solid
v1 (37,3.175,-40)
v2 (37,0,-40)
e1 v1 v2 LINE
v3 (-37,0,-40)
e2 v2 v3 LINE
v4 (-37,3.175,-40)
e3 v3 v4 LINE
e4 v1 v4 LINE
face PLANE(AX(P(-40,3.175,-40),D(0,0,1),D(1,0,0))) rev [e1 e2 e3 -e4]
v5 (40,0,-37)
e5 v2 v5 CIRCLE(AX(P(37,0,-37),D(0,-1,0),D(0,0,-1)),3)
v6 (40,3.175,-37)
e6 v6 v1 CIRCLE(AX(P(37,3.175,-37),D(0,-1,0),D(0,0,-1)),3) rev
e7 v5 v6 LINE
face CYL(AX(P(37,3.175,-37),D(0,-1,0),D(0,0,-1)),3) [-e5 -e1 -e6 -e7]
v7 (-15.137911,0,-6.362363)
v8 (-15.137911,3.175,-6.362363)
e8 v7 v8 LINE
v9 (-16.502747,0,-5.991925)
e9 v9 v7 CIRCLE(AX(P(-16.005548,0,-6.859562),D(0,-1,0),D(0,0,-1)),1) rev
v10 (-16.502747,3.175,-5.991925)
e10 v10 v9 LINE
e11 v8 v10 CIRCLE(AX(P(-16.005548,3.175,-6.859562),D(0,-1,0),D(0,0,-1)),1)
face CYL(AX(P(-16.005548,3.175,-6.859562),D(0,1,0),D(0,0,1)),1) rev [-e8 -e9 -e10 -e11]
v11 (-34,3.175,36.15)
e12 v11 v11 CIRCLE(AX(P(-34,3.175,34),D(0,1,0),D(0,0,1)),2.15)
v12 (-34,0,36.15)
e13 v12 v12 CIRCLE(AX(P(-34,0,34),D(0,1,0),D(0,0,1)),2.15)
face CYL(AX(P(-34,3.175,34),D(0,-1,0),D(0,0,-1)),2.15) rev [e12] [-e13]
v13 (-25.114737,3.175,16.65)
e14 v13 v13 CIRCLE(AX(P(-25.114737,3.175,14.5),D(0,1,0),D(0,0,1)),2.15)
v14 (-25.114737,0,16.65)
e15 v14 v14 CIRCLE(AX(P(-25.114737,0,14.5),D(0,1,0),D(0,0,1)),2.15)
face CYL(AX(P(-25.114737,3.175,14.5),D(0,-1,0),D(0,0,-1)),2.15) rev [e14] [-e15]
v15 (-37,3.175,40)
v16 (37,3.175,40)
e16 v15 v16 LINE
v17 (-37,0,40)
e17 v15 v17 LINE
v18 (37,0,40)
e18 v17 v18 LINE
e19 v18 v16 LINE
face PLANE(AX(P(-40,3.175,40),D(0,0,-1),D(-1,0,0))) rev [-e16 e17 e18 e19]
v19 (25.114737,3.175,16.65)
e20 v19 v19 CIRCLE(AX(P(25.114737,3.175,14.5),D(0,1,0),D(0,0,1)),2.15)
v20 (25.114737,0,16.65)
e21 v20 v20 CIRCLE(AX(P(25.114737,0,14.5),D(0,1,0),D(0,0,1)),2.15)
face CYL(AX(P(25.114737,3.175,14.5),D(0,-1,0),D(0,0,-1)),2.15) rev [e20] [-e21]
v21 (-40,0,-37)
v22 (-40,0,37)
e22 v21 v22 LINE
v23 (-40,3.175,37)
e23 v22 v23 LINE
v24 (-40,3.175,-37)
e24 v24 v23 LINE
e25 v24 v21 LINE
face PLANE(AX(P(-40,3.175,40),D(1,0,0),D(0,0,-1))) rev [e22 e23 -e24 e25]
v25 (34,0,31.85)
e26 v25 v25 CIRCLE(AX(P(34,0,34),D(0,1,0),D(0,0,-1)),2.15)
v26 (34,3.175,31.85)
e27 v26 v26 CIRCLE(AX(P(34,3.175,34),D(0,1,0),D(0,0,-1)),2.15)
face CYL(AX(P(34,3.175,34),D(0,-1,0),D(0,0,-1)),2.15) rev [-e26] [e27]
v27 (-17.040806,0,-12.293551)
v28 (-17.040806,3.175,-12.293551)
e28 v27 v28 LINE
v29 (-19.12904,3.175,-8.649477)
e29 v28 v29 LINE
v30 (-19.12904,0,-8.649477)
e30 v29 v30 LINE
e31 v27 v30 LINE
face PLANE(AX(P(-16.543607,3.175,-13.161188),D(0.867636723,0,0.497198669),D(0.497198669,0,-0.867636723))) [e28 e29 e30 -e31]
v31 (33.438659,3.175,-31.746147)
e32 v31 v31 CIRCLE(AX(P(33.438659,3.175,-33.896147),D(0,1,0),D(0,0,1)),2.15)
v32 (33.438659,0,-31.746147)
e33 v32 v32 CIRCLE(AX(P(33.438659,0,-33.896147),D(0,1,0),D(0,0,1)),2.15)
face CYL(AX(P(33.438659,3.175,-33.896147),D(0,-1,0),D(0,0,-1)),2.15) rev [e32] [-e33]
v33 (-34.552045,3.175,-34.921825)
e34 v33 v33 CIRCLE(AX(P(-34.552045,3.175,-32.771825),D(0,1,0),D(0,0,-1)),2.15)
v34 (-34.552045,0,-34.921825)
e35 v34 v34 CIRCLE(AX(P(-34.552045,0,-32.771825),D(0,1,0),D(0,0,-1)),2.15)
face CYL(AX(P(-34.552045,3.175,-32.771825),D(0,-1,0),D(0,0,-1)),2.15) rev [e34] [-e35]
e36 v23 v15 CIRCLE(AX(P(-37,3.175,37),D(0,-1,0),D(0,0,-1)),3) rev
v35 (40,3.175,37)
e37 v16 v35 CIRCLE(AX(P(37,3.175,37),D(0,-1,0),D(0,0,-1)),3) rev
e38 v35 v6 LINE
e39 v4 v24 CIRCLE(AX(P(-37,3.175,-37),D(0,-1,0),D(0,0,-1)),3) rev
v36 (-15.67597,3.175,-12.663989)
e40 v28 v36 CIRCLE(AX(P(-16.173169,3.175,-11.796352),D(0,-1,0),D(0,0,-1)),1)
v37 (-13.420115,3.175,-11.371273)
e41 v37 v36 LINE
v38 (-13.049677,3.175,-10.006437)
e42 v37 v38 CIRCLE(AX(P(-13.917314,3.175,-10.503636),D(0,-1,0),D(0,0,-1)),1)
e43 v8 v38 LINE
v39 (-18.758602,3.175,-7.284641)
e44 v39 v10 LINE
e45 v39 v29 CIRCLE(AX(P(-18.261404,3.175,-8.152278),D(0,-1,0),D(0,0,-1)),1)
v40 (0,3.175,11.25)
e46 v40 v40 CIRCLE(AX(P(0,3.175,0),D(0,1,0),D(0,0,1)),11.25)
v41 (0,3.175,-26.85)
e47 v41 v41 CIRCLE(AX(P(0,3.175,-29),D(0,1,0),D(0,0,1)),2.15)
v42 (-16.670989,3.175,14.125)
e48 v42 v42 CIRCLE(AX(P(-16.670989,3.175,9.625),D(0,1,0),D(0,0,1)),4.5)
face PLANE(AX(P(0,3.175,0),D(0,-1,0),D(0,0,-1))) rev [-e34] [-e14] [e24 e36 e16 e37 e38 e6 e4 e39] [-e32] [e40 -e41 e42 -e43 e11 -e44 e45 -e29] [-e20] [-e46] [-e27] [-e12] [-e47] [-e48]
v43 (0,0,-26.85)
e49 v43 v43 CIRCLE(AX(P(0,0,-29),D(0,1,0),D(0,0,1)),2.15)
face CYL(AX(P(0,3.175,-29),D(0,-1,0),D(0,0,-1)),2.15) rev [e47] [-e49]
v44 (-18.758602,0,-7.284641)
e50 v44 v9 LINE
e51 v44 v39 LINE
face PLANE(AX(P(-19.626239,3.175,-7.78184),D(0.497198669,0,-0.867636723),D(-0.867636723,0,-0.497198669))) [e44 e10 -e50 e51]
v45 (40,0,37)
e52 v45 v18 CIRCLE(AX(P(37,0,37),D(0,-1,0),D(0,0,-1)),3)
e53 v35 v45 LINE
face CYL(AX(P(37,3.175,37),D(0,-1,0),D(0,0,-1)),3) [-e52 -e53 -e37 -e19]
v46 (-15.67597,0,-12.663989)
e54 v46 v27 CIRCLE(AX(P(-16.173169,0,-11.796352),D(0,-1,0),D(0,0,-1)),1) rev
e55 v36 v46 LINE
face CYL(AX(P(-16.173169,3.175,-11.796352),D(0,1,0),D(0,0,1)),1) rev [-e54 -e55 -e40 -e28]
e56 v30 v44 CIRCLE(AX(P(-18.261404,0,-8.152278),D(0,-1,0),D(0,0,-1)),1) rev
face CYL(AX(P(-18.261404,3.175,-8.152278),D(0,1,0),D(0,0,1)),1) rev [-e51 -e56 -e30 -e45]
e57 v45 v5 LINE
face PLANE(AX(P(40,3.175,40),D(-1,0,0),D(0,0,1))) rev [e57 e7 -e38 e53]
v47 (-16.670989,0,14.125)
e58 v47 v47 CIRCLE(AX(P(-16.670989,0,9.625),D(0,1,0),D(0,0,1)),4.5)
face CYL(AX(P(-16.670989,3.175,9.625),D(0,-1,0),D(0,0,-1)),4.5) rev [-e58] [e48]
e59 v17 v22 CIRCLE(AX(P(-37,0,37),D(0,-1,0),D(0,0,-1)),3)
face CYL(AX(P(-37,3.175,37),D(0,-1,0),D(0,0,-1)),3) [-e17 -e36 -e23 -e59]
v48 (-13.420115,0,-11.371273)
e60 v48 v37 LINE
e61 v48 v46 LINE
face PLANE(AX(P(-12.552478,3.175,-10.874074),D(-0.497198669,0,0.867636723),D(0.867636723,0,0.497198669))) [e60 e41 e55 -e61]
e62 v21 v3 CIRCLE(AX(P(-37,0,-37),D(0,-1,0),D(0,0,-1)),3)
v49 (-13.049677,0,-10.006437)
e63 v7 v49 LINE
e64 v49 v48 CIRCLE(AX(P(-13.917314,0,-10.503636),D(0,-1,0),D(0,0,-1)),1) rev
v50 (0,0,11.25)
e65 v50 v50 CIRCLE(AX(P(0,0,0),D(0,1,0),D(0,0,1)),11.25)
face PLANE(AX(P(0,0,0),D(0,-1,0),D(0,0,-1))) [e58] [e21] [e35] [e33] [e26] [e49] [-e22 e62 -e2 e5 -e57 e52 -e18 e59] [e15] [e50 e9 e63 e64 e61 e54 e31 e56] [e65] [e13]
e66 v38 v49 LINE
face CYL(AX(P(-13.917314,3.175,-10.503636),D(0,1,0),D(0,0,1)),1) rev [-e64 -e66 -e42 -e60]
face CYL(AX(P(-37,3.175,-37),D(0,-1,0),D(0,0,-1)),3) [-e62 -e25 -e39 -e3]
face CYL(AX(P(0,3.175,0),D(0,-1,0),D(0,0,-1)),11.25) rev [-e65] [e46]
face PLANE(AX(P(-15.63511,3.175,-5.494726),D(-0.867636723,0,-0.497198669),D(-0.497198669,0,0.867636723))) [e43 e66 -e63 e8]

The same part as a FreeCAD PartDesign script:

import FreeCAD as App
import Part
import Sketcher

V = App.Vector
Q = App.Units.Quantity


def edges_at(feature, points):
    """Names of the edges that pass closest to the given points."""
    edges = feature.Shape.Edges
    near = lambda p: min(range(len(edges)), key=lambda i: edges[i].distToShape(Part.Vertex(*p))[0])
    return sorted({f"Edge{near(p) + 1}" for p in points})


def add_polygon(sketch, points):
    """Adds a closed chain of lines whose ends are joined by coincident constraints."""
    first, n = sketch.GeometryCount, len(points)
    for a, b in zip(points, points[1:] + points[:1]):
        sketch.addGeometry(Part.LineSegment(App.Vector(*a, 0), App.Vector(*b, 0)), False)
    for i in range(n):
        sketch.addConstraint(Sketcher.Constraint("Coincident", first + i, 2, first + (i + 1) % n, 1))

doc = App.newDocument("Part")
params = doc.addObject("Spreadsheet::Sheet", "Params")
for row, (alias, value) in enumerate([
    ("sketch1_diameter", "9 mm"),
    ("sketch1_diameter2", "4.3 mm"),
    ("sketch1_diameter3", "22.5 mm"),
    ("sketch1_width", "80 mm"),
    ("sketch1_length", "4.6 mm"),
    ("pad1_length", "3.175 mm"),
    ("fillet_radius", "3 mm"),
    ("fillet2_radius", "1 mm"),
], start=1):
    params.set(f"A{row}", alias)
    params.set(f"B{row}", "=" + value)
    params.setAlias(f"B{row}", alias)

body = doc.addObject("PartDesign::Body", "Body")

# Sketch on XZ plane
sketch1 = body.newObject("Sketcher::SketchObject", "Sketch")
sketch1.AttachmentSupport = (doc.getObject("XZ_Plane"), [""])
sketch1.MapMode = "FlatFace"
add_polygon(sketch1, [(-40, -40), (-40, 40), (40, 40), (40, -40)])  # lines 0-3
sketch1.addGeometry(Part.Circle(V(-34, 34, 0), V(0, 0, 1), 2.1), False)  # 4
sketch1.addGeometry(Part.Circle(V(-25.1, 14.5, 0), V(0, 0, 1), 2.1), False)  # 5
sketch1.addGeometry(Part.Circle(V(-16.7, 9.6, 0), V(0, 0, 1), 4.5), False)  # 6
sketch1.addGeometry(Part.Circle(V(34, 34, 0), V(0, 0, 1), 2.1), False)  # 7
sketch1.addGeometry(Part.Circle(V(25.1, 14.5, 0), V(0, 0, 1), 2.1), False)  # 8
add_polygon(sketch1, [(-15.6, -5.5), (-19.6, -7.8), (-16.5, -13.2), (-12.6, -10.9)])  # lines 9-12
sketch1.addGeometry(Part.Circle(V(-34.6, -32.8, 0), V(0, 0, 1), 2.1), False)  # 13
sketch1.addGeometry(Part.Circle(V(0, 0, 0), V(0, 0, 1), 11.2), False)  # 14
sketch1.addGeometry(Part.Circle(V(0, -29, 0), V(0, 0, 1), 2.1), False)  # 15
sketch1.addGeometry(Part.Circle(V(33.4, -33.9, 0), V(0, 0, 1), 2.1), False)  # 16
sketch1.addConstraint([
    Sketcher.Constraint("Vertical", 0),
    Sketcher.Constraint("Horizontal", 1),
    Sketcher.Constraint("Vertical", 2),
    Sketcher.Constraint("Horizontal", 3),
    Sketcher.Constraint("Coincident", 14, 3, -1, 1),
    Sketcher.Constraint("Equal", 4, 5),
    Sketcher.Constraint("Equal", 5, 7),
    Sketcher.Constraint("Equal", 7, 8),
    Sketcher.Constraint("Equal", 8, 13),
    Sketcher.Constraint("Equal", 13, 15),
    Sketcher.Constraint("Equal", 15, 16),
    Sketcher.Constraint("Symmetric", 0, 2, 2, 2, -1, 1),
    Sketcher.Constraint("Symmetric", 4, 3, 7, 3, -2),
    Sketcher.Constraint("Symmetric", 5, 3, 8, 3, -2),
    Sketcher.Constraint("PointOnObject", 15, 3, -2),
    Sketcher.Constraint("Perpendicular", 9, 10),
    Sketcher.Constraint("Perpendicular", 10, 11),
    Sketcher.Constraint("Perpendicular", 11, 12),
    Sketcher.Constraint("Equal", 3, 0),
    Sketcher.Constraint("Diameter", 6, Q("9 mm")),
    Sketcher.Constraint("Diameter", 4, Q("4.3 mm")),
    Sketcher.Constraint("Diameter", 14, Q("22.5 mm")),
    Sketcher.Constraint("DistanceX", 1, 1, 1, 2, Q("80 mm")),
    Sketcher.Constraint("DistanceX", 4, 3, -1, 1, Q("34 mm")),
    Sketcher.Constraint("DistanceY", -1, 1, 4, 3, Q("34 mm")),
    Sketcher.Constraint("DistanceY", 15, 3, -1, 1, Q("29 mm")),
    Sketcher.Constraint("Distance", 9, Q("4.6 mm")),
    Sketcher.Constraint("Distance", 10, Q("6.2 mm")),
    Sketcher.Constraint("DistanceY", -1, 1, 5, 3, Q("14.5 mm")),
    Sketcher.Constraint("DistanceY", -1, 1, 6, 3, Q("9.625 mm")),
    Sketcher.Constraint("DistanceX", 6, 3, -1, 1, Q("16.670989 mm")),
    Sketcher.Constraint("DistanceX", -1, 1, 16, 3, Q("33.438659 mm")),
    Sketcher.Constraint("DistanceX", 9, 2, -1, 1, Q("19.626239 mm")),
    Sketcher.Constraint("DistanceY", 9, 2, -1, 1, Q("7.78184 mm")),
    Sketcher.Constraint("DistanceX", 11, 2, -1, 1, Q("12.552478 mm")),
    Sketcher.Constraint("DistanceX", 13, 3, 5, 3, Q("9.437309 mm")),
    Sketcher.Constraint("DistanceX", 13, 3, 10, 2, Q("18.008438 mm")),
    Sketcher.Constraint("DistanceY", 13, 3, -1, 1, Q("32.771825 mm")),
    Sketcher.Constraint("DistanceY", 16, 3, -1, 1, Q("33.896147 mm")),
])
sketch1.setExpression("Constraints[27]", "Params.sketch1_diameter")
sketch1.setExpression("Constraints[28]", "Params.sketch1_diameter2")
sketch1.setExpression("Constraints[29]", "Params.sketch1_diameter3")
sketch1.setExpression("Constraints[30]", "Params.sketch1_width")
sketch1.setExpression("Constraints[34]", "Params.sketch1_length")
pad1 = body.newObject("PartDesign::Pad", "Pad")
pad1.Profile = sketch1
pad1.setExpression("Length", "Params.pad1_length")
pad1.Reversed = True
doc.recompute()

fillet = body.newObject("PartDesign::Fillet", "Fillet")
fillet.Base = (pad1, edges_at(pad1, [
    (40, 1.587, 40),
    (-40, 1.587, 40),
    (-40, 1.587, -40),
    (40, 1.587, -40),
]))
fillet.setExpression("Radius", "Params.fillet_radius")
doc.recompute()

fillet2 = body.newObject("PartDesign::Fillet", "Fillet001")
fillet2.Base = (fillet, edges_at(fillet, [
    (-16.544, 1.587, -13.161),
    (-19.626, 1.587, -7.782),
    (-15.635, 1.587, -5.495),
    (-12.552, 1.587, -10.874),
]))
fillet2.setExpression("Radius", "Params.fillet2_radius")

doc.recompute()
